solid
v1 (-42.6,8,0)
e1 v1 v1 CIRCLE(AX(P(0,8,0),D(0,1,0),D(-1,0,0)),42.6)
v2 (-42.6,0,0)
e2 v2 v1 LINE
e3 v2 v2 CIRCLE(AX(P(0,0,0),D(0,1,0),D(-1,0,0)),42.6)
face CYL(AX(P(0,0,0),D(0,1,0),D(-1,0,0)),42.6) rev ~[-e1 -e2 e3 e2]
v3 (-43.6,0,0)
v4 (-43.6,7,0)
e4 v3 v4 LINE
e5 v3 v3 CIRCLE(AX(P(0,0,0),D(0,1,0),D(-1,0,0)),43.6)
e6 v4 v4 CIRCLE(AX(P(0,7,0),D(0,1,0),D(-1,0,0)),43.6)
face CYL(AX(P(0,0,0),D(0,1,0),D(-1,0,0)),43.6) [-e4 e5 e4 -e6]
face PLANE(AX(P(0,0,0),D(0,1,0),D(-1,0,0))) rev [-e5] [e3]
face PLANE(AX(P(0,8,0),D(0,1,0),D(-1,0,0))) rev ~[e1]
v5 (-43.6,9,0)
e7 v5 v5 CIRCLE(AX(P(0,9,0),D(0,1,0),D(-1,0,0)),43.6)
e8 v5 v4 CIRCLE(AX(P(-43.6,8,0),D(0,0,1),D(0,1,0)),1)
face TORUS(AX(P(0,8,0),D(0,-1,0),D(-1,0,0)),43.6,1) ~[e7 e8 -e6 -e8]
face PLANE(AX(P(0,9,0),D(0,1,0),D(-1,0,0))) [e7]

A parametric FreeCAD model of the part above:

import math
import FreeCAD as App
import Part
import Sketcher
Q = App.Units.Quantity

doc = App.newDocument("Part")
params = doc.addObject("Spreadsheet::Sheet", "Params")
for row, (alias, value) in enumerate([
    ("sketch1_radius", "1 mm"),
    ("sketch1_height", "8 mm"),
    ("sketch1_width", "42.6 mm"),
    ("revolution_angle", "360 deg"),
], start=1):
    params.set(f"A{row}", alias)
    params.set(f"B{row}", "=" + value)
    params.setAlias(f"B{row}", alias)

body = doc.addObject("PartDesign::Body", "Body")

# Sketch on XY plane
sketch1 = doc.addObject("Sketcher::SketchObject", "Sketch")
body.addObject(sketch1)
sketch1.AttachmentSupport = (doc.XY_Plane, [""])
sketch1.MapMode = "FlatFace"
sketch1.addGeometry(Part.LineSegment(App.Vector(-43.6, 0, 0), App.Vector(-42.6, 0, 0)), False)
sketch1.addGeometry(Part.LineSegment(App.Vector(-42.6, 0, 0), App.Vector(-42.6, 8, 0)), False)
sketch1.addGeometry(Part.LineSegment(App.Vector(-42.6, 8, 0), App.Vector(0, 8, 0)), False)
sketch1.addGeometry(Part.LineSegment(App.Vector(0, 8, 0), App.Vector(0, 9, 0)), False)
sketch1.addGeometry(Part.LineSegment(App.Vector(0, 9, 0), App.Vector(-43.6, 9, 0)), False)
sketch1.addGeometry(Part.ArcOfCircle(Part.Circle(App.Vector(-43.6, 8, 0), App.Vector(0, 0, 1), 1), math.radians(90), math.radians(270)), False)
sketch1.addGeometry(Part.LineSegment(App.Vector(-43.6, 7, 0), App.Vector(-43.6, 0, 0)), False)
sketch1.addConstraint(Sketcher.Constraint("Coincident", 0, 2, 1, 1))
sketch1.addConstraint(Sketcher.Constraint("Coincident", 1, 2, 2, 1))
sketch1.addConstraint(Sketcher.Constraint("Coincident", 2, 2, 3, 1))
sketch1.addConstraint(Sketcher.Constraint("Coincident", 3, 2, 4, 1))
sketch1.addConstraint(Sketcher.Constraint("Tangent", 4, 2, 5, 1))
sketch1.addConstraint(Sketcher.Constraint("Coincident", 5, 2, 6, 1))
sketch1.addConstraint(Sketcher.Constraint("Coincident", 6, 2, 0, 1))
sketch1.addConstraint(Sketcher.Constraint("Horizontal", 0))
sketch1.addConstraint(Sketcher.Constraint("Vertical", 1))
sketch1.addConstraint(Sketcher.Constraint("Horizontal", 2))
sketch1.addConstraint(Sketcher.Constraint("Vertical", 3))
sketch1.addConstraint(Sketcher.Constraint("Horizontal", 4))
sketch1.addConstraint(Sketcher.Constraint("Vertical", 6))
sketch1.addConstraint(Sketcher.Constraint("PointOnObject", 0, 2, -1))
sketch1.addConstraint(Sketcher.Constraint("PointOnObject", 2, 2, -2))
sketch1.addConstraint(Sketcher.Constraint("Horizontal", 5, 3, 1, 2))
sketch1.addConstraint(Sketcher.Constraint("Vertical", 4, 2, 5, 2))
sketch1.addConstraint(Sketcher.Constraint("Equal", 0, 3))
sketch1.addConstraint(Sketcher.Constraint("Radius", 5, Q("1 mm")))
sketch1.addConstraint(Sketcher.Constraint("DistanceY", 1, 1, 1, 2, Q("8 mm")))
sketch1.addConstraint(Sketcher.Constraint("DistanceX", 2, 1, 2, 2, Q("42.6 mm")))
sketch1.setExpression("Constraints[18]", "Params.sketch1_radius")
sketch1.setExpression("Constraints[19]", "Params.sketch1_height")
sketch1.setExpression("Constraints[20]", "Params.sketch1_width")
revolution = doc.addObject("PartDesign::Revolution", "Revolution")
body.addObject(revolution)
revolution.Profile = sketch1
revolution.ReferenceAxis = (sketch1, ["V_Axis"])
revolution.setExpression("Angle", "Params.revolution_angle")

doc.recompute()
